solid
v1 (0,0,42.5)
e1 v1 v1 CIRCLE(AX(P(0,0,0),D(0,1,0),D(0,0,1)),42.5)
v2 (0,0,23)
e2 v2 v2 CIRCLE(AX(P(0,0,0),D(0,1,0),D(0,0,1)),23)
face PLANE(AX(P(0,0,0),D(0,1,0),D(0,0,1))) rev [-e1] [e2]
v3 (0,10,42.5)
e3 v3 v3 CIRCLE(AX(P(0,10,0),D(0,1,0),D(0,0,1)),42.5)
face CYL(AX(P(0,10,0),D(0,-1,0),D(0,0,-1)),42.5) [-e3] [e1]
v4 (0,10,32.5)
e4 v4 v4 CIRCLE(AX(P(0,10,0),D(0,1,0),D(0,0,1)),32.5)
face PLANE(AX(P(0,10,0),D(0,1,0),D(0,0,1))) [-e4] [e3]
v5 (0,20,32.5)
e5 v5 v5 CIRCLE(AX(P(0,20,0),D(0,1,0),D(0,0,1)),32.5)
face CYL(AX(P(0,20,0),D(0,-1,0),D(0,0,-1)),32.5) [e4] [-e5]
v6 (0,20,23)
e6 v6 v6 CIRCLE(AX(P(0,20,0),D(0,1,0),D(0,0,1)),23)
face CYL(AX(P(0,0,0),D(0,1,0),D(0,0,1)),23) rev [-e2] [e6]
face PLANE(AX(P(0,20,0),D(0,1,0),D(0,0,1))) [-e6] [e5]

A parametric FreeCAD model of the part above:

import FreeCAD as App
import Part
import Sketcher

V = App.Vector
Q = App.Units.Quantity

doc = App.newDocument("Part")
body = doc.addObject("PartDesign::Body", "Body")

# Sketch on XZ plane
sketch1 = body.newObject("Sketcher::SketchObject", "Sketch")
sketch1.AttachmentSupport = (doc.getObject("XZ_Plane"), [""])
sketch1.MapMode = "FlatFace"
sketch1.addGeometry(Part.Circle(V(0, 0, 0), V(0, 0, 1), 42), False)
sketch1.addConstraint([
    Sketcher.Constraint("Coincident", 0, 3, -1, 1),
    Sketcher.Constraint("Diameter", 0, Q("85 mm")),
])
pad1 = body.newObject("PartDesign::Pad", "Pad")
pad1.Profile = sketch1
pad1.Length = 10
pad1.Reversed = True

# Sketch on XZ plane
sketch2 = body.newObject("Sketcher::SketchObject", "Sketch001")
sketch2.AttachmentSupport = (doc.getObject("XZ_Plane"), [""])
sketch2.MapMode = "FlatFace"
sketch2.AttachmentOffset = App.Placement(V(0, 0, -10), App.Rotation())
sketch2.addGeometry(Part.Circle(V(0, 0, 0), V(0, 0, 1), 32), False)
sketch2.addConstraint([
    Sketcher.Constraint("Coincident", 0, 3, -1, 1),
    Sketcher.Constraint("Diameter", 0, Q("65 mm")),
])
pad2 = body.newObject("PartDesign::Pad", "Pad001")
pad2.Profile = sketch2
pad2.Length = 10
pad2.Reversed = True

# Sketch on XZ plane
sketch3 = body.newObject("Sketcher::SketchObject", "Sketch002")
sketch3.AttachmentSupport = (doc.getObject("XZ_Plane"), [""])
sketch3.MapMode = "FlatFace"
sketch3.AttachmentOffset = App.Placement(V(0, 0, -20), App.Rotation())
sketch3.addGeometry(Part.Circle(V(0, 0, 0), V(0, 0, 1), 23), False)
sketch3.addConstraint([
    Sketcher.Constraint("Coincident", 0, 3, -1, 1),
    Sketcher.Constraint("Diameter", 0, Q("46 mm")),
])
pocket1 = body.newObject("PartDesign::Pocket", "Pocket")
pocket1.Profile = sketch3
pocket1.Type = "ThroughAll"
pocket1.Reversed = True

doc.recompute()
